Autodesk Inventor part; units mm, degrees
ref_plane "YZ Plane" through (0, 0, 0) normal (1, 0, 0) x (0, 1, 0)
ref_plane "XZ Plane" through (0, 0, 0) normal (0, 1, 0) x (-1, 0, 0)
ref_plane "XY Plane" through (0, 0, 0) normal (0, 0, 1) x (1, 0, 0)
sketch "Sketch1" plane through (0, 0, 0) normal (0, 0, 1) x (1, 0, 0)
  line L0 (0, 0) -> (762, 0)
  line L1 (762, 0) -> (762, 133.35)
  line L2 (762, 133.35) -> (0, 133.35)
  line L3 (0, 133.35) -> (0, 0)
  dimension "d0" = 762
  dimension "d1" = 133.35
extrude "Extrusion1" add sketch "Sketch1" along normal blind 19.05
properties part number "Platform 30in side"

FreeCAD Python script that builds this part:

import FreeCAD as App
import Part
import Sketcher
from FreeCAD import Vector
Q = App.Units.Quantity

doc = App.newDocument("Part")
params = doc.addObject("Spreadsheet::Sheet", "Params")
for row, (alias, value) in enumerate([
    ("sketch1_width", "30 in"),
    ("sketch1_height", "5.25 in"),
    ("pad1_length", "0.75 in"),
], start=1):
    params.set(f"A{row}", alias)
    params.set(f"B{row}", "=" + value)
    params.setAlias(f"B{row}", alias)

body = doc.addObject("PartDesign::Body", "Body")

# Sketch on XY plane
sketch1 = body.newObject("Sketcher::SketchObject", "Sketch")
sketch1.AttachmentSupport = (doc.getObject("XY_Plane"), [""])
sketch1.MapMode = "FlatFace"
sketch1.addGeometry([
    Part.LineSegment(Vector(0, 133, 0), Vector(0, 0, 0)),
    Part.LineSegment(Vector(0, 0, 0), Vector(762, 0, 0)),
    Part.LineSegment(Vector(762, 0, 0), Vector(762, 133, 0)),
    Part.LineSegment(Vector(762, 133, 0), Vector(0, 133, 0)),
], False)
sketch1.addConstraint([
    Sketcher.Constraint("Coincident", 0, 2, 1, 1),
    Sketcher.Constraint("Coincident", 1, 2, 2, 1),
    Sketcher.Constraint("Coincident", 2, 2, 3, 1),
    Sketcher.Constraint("Coincident", 3, 2, 0, 1),
    Sketcher.Constraint("Vertical", 0),
    Sketcher.Constraint("Horizontal", 1),
    Sketcher.Constraint("Vertical", 2),
    Sketcher.Constraint("Horizontal", 3),
    Sketcher.Constraint("Coincident", 0, 2, -1, 1),
    Sketcher.Constraint("DistanceX", 1, 1, 1, 2, Q("30 in")),
    Sketcher.Constraint("DistanceY", 0, 2, 0, 1, Q("5.25 in")),
])
sketch1.setExpression("Constraints[9]", "Params.sketch1_width")
sketch1.setExpression("Constraints[10]", "Params.sketch1_height")
pad1 = body.newObject("PartDesign::Pad", "Pad")
pad1.Profile = sketch1
pad1.setExpression("Length", "Params.pad1_length")

doc.recompute()
